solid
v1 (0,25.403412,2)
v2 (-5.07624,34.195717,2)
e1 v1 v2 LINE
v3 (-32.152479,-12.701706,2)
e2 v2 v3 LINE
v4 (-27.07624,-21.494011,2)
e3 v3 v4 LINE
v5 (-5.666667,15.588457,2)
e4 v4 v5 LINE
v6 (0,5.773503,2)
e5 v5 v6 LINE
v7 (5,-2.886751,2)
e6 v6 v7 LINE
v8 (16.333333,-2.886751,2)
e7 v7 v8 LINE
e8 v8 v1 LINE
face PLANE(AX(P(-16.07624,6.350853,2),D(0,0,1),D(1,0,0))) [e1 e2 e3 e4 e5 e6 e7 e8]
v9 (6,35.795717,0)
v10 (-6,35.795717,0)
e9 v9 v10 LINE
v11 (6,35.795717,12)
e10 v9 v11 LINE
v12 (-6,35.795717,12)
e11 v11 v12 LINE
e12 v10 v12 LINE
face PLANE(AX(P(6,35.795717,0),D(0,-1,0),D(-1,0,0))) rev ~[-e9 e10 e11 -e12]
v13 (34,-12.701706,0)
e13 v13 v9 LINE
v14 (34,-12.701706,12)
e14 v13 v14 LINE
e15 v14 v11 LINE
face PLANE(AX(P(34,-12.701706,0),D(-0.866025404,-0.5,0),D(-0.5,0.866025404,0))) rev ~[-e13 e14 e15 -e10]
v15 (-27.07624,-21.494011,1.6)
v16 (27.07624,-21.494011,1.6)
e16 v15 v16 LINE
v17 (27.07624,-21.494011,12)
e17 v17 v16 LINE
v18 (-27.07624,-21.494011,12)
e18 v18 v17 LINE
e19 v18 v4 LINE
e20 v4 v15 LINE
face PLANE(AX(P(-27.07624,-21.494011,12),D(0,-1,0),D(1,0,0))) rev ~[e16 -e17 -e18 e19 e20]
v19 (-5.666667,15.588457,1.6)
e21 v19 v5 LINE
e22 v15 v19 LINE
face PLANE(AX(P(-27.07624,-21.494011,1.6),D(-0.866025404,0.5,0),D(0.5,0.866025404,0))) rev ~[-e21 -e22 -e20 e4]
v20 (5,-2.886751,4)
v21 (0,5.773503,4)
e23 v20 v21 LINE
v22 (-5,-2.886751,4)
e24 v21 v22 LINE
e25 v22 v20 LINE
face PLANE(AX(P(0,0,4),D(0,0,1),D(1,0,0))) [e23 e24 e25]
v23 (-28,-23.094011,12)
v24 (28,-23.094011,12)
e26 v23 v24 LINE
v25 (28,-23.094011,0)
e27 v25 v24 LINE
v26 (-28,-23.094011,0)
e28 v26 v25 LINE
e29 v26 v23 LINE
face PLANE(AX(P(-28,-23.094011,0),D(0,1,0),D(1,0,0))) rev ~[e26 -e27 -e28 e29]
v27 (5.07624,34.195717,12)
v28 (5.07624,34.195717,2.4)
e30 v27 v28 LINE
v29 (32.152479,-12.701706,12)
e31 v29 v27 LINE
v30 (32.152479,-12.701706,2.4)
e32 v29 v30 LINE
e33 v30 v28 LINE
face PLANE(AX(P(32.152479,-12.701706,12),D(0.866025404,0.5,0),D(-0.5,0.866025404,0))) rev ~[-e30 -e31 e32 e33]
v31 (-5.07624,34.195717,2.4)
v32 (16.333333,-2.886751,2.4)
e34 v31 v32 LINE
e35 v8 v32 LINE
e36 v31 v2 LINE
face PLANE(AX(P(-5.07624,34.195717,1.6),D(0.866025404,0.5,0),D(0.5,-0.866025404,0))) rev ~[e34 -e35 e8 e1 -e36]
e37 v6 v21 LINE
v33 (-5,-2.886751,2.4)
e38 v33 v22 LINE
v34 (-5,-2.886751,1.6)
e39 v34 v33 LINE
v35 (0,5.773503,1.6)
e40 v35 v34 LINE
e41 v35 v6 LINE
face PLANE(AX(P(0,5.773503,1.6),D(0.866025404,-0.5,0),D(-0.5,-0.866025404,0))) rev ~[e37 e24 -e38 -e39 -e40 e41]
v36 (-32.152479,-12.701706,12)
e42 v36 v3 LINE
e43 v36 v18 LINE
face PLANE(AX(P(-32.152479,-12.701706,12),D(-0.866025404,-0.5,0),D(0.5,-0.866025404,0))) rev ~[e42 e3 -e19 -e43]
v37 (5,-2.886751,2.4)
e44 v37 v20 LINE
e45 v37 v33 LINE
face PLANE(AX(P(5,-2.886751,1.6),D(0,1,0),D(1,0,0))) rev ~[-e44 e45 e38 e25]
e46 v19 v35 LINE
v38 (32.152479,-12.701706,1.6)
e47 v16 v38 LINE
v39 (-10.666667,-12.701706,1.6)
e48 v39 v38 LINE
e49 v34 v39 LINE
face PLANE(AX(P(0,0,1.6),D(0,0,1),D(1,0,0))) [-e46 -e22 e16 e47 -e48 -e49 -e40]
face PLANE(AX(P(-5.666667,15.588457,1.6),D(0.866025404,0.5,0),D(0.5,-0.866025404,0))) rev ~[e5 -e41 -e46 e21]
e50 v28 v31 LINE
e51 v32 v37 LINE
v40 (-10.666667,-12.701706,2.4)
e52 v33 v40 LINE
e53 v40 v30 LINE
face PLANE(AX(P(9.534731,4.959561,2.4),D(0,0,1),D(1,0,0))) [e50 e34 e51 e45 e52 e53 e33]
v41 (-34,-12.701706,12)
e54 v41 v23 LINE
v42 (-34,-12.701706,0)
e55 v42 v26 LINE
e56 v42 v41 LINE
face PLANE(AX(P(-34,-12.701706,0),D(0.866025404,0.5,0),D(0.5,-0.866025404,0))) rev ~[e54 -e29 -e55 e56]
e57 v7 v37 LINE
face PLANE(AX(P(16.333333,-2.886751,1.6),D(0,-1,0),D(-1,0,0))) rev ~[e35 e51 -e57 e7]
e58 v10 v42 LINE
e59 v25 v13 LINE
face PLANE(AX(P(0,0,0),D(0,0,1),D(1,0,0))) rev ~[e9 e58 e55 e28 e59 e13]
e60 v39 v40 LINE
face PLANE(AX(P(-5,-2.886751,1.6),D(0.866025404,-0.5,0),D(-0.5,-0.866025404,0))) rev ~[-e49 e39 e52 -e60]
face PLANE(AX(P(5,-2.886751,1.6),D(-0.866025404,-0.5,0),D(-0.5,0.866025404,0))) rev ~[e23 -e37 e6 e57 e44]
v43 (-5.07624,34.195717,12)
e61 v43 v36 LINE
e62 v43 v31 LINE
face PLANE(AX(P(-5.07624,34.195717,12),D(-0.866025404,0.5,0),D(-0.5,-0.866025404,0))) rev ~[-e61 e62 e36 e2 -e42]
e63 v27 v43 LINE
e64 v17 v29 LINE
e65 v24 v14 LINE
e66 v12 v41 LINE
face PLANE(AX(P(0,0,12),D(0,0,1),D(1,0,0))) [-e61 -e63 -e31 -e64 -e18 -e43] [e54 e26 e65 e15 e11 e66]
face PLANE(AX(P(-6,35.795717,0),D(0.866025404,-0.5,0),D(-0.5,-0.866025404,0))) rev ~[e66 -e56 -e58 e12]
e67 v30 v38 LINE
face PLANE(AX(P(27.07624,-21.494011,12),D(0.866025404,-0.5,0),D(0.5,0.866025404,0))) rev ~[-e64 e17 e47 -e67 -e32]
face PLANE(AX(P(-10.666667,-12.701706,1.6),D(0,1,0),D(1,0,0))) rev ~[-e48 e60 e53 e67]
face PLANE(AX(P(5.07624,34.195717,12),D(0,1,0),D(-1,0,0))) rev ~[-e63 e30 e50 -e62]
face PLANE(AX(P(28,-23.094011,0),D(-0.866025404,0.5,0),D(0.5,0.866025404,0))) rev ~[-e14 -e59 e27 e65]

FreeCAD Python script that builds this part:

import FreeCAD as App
import Part
import Sketcher
from FreeCAD import Vector
Q = App.Units.Quantity


def add_polygon(sketch, points):
    """Adds a closed chain of lines whose ends are joined by coincident constraints."""
    first, n = sketch.GeometryCount, len(points)
    for a, b in zip(points, points[1:] + points[:1]):
        sketch.addGeometry(Part.LineSegment(App.Vector(*a, 0), App.Vector(*b, 0)), False)
    for i in range(n):
        sketch.addConstraint(Sketcher.Constraint("Coincident", first + i, 2, first + (i + 1) % n, 1))

doc = App.newDocument("Part")
body = doc.addObject("PartDesign::Body", "Body")

# Sketch on XY plane
sketch1 = body.newObject("Sketcher::SketchObject", "Sketch")
sketch1.AttachmentSupport = (doc.getObject("XY_Plane"), [""])
sketch1.MapMode = "FlatFace"
add_polygon(sketch1, [(-28, -23), (28, -23), (34, -13), (6, 36), (-6, 36), (-34, -13)])  # lines 0-5
sketch1.addConstraint(Sketcher.Constraint("Horizontal", 0))
sketch1.addConstraint(Sketcher.Constraint("Horizontal", 3))
sketch1.addConstraint(Sketcher.Constraint("Symmetric", 1, 2, 4, 2, -2))
sketch1.addConstraint(Sketcher.Constraint("Parallel", 1, 4))
sketch1.addConstraint(Sketcher.Constraint("Parallel", 2, 5))
sketch1.addConstraint(Sketcher.Constraint("Equal", 2, 4))
sketch1.addConstraint(Sketcher.Constraint("DistanceX", 0, 1, 0, 2, 56.0))
sketch1.addConstraint(Sketcher.Constraint("DistanceX", 3, 2, 3, 1, 12.0))
sketch1.addConstraint(Sketcher.Constraint("Angle", 1, Q("60 deg")))
sketch1.addConstraint(Sketcher.Constraint("Distance", 1, 12.0))
sketch1.addConstraint(Sketcher.Constraint("DistanceY", 0, 2, -1, 1, 23.094011))
pad1 = body.newObject("PartDesign::Pad", "Pad")
pad1.Profile = sketch1
pad1.Length = 12

# Sketch on XY plane
sketch2 = body.newObject("Sketcher::SketchObject", "Sketch001")
sketch2.AttachmentSupport = (doc.getObject("XY_Plane"), [""])
sketch2.MapMode = "FlatFace"
sketch2.AttachmentOffset = App.Placement(Vector(0, 0, 12), App.Rotation())
add_polygon(sketch2, [(32, -13), (5, 34), (-5, 34), (-32, -13), (-27, -21), (27, -21)])  # lines 0-5
sketch2.addConstraint(Sketcher.Constraint("Horizontal", 1))
sketch2.addConstraint(Sketcher.Constraint("Horizontal", 4))
sketch2.addConstraint(Sketcher.Constraint("Symmetric", 2, 2, 5, 2, -2))
sketch2.addConstraint(Sketcher.Constraint("Parallel", 0, 3))
sketch2.addConstraint(Sketcher.Constraint("Parallel", 2, 5))
sketch2.addConstraint(Sketcher.Constraint("Equal", 0, 2))
sketch2.addConstraint(Sketcher.Constraint("Angle", 0, Q("120 deg")))
sketch2.addConstraint(Sketcher.Constraint("DistanceX", 3, 2, 1, 2, 22.0))
sketch2.addConstraint(Sketcher.Constraint("DistanceX", 1, 2, 1, 1, 10.152479))
sketch2.addConstraint(Sketcher.Constraint("Distance", 0, 54.152479))
sketch2.addConstraint(Sketcher.Constraint("DistanceY", 3, 2, -1, 1, 21.494011))
pocket1 = body.newObject("PartDesign::Pocket", "Pocket")
pocket1.Profile = sketch2
pocket1.Length = 10.4

# Sketch on XY plane
sketch3 = body.newObject("Sketcher::SketchObject", "Sketch002")
sketch3.AttachmentSupport = (doc.getObject("XY_Plane"), [""])
sketch3.MapMode = "FlatFace"
sketch3.AttachmentOffset = App.Placement(Vector(0, 0, 1.6), App.Rotation())
add_polygon(sketch3, [(-5, -3), (5, -3), (0, 6)])  # lines 0-2
sketch3.addConstraint(Sketcher.Constraint("Horizontal", 0))
sketch3.addConstraint(Sketcher.Constraint("PointOnObject", 1, 2, -2))
sketch3.addConstraint(Sketcher.Constraint("Equal", 1, 2))
sketch3.addConstraint(Sketcher.Constraint("DistanceX", 0, 1, 0, 2, 10.0))
sketch3.addConstraint(Sketcher.Constraint("Angle", 1, Q("120 deg")))
sketch3.addConstraint(Sketcher.Constraint("DistanceY", 0, 2, -1, 1, 2.886751))
pad2 = body.newObject("PartDesign::Pad", "Pad001")
pad2.Profile = sketch3
pad2.Length = 2.4

# Sketch on XY plane
sketch4 = body.newObject("Sketcher::SketchObject", "Sketch003")
sketch4.AttachmentSupport = (doc.getObject("XY_Plane"), [""])
sketch4.MapMode = "FlatFace"
sketch4.AttachmentOffset = App.Placement(Vector(0, 0, 1.6), App.Rotation())
add_polygon(sketch4, [(0, 25), (-5, 34), (-32, -13), (-27, -21), (-6, 16), (0, 6), (5, -3), (16, -3)])  # lines 0-7
sketch4.addConstraint(Sketcher.Constraint("Horizontal", 6))
sketch4.addConstraint(Sketcher.Constraint("PointOnObject", 4, 2, -2))
sketch4.addConstraint(Sketcher.Constraint("PointOnObject", 7, 2, -2))
sketch4.addConstraint(Sketcher.Constraint("Parallel", 0, 2))
sketch4.addConstraint(Sketcher.Constraint("Parallel", 1, 3))
sketch4.addConstraint(Sketcher.Constraint("Parallel", 2, 4))
sketch4.addConstraint(Sketcher.Constraint("Parallel", 4, 5))
sketch4.addConstraint(Sketcher.Constraint("Parallel", 5, 7))
sketch4.addConstraint(Sketcher.Constraint("Equal", 0, 2))
sketch4.addConstraint(Sketcher.Constraint("Angle", 0, Q("120 deg")))
sketch4.addConstraint(Sketcher.Constraint("Angle", 1, Q("-120 deg")))
sketch4.addConstraint(Sketcher.Constraint("Distance", 5, 10.0))
sketch4.addConstraint(Sketcher.Constraint("DistanceX", 2, 2, 0, 2, 22.0))
sketch4.addConstraint(Sketcher.Constraint("DistanceX", 3, 2, 6, 2, 22.0))
sketch4.addConstraint(Sketcher.Constraint("Distance", 0, 10.152479))
sketch4.addConstraint(Sketcher.Constraint("DistanceY", 2, 2, -1, 1, 21.494011))
pad3 = body.newObject("PartDesign::Pad", "Pad002")
pad3.Profile = sketch4
pad3.Length = 0.4

# Sketch on XY plane
sketch5 = body.newObject("Sketcher::SketchObject", "Sketch004")
sketch5.AttachmentSupport = (doc.getObject("XY_Plane"), [""])
sketch5.MapMode = "FlatFace"
sketch5.AttachmentOffset = App.Placement(Vector(0, 0, 1.6), App.Rotation())
add_polygon(sketch5, [(-11, -13), (32, -13), (5, 34), (-5, 34), (16, -3), (-5, -3)])  # lines 0-5
sketch5.addConstraint(Sketcher.Constraint("Horizontal", 0))
sketch5.addConstraint(Sketcher.Constraint("Horizontal", 2))
sketch5.addConstraint(Sketcher.Constraint("Horizontal", 4))
sketch5.addConstraint(Sketcher.Constraint("Parallel", 1, 3))
sketch5.addConstraint(Sketcher.Constraint("Angle", 1, Q("120 deg")))
sketch5.addConstraint(Sketcher.Constraint("Angle", 5, Q("-120 deg")))
sketch5.addConstraint(Sketcher.Constraint("DistanceX", 4, 2, -1, 1, 5.0))
sketch5.addConstraint(Sketcher.Constraint("DistanceX", 5, 2, 3, 2, 27.0))
sketch5.addConstraint(Sketcher.Constraint("DistanceX", 2, 2, 2, 1, 10.152479))
sketch5.addConstraint(Sketcher.Constraint("Distance", 1, 54.152479))
sketch5.addConstraint(Sketcher.Constraint("DistanceX", 0, 1, 0, 2, 42.819146))
sketch5.addConstraint(Sketcher.Constraint("DistanceY", 3, 2, -1, 1, 2.886751))
pad4 = body.newObject("PartDesign::Pad", "Pad003")
pad4.Profile = sketch5
pad4.Length = 0.8

doc.recompute()
